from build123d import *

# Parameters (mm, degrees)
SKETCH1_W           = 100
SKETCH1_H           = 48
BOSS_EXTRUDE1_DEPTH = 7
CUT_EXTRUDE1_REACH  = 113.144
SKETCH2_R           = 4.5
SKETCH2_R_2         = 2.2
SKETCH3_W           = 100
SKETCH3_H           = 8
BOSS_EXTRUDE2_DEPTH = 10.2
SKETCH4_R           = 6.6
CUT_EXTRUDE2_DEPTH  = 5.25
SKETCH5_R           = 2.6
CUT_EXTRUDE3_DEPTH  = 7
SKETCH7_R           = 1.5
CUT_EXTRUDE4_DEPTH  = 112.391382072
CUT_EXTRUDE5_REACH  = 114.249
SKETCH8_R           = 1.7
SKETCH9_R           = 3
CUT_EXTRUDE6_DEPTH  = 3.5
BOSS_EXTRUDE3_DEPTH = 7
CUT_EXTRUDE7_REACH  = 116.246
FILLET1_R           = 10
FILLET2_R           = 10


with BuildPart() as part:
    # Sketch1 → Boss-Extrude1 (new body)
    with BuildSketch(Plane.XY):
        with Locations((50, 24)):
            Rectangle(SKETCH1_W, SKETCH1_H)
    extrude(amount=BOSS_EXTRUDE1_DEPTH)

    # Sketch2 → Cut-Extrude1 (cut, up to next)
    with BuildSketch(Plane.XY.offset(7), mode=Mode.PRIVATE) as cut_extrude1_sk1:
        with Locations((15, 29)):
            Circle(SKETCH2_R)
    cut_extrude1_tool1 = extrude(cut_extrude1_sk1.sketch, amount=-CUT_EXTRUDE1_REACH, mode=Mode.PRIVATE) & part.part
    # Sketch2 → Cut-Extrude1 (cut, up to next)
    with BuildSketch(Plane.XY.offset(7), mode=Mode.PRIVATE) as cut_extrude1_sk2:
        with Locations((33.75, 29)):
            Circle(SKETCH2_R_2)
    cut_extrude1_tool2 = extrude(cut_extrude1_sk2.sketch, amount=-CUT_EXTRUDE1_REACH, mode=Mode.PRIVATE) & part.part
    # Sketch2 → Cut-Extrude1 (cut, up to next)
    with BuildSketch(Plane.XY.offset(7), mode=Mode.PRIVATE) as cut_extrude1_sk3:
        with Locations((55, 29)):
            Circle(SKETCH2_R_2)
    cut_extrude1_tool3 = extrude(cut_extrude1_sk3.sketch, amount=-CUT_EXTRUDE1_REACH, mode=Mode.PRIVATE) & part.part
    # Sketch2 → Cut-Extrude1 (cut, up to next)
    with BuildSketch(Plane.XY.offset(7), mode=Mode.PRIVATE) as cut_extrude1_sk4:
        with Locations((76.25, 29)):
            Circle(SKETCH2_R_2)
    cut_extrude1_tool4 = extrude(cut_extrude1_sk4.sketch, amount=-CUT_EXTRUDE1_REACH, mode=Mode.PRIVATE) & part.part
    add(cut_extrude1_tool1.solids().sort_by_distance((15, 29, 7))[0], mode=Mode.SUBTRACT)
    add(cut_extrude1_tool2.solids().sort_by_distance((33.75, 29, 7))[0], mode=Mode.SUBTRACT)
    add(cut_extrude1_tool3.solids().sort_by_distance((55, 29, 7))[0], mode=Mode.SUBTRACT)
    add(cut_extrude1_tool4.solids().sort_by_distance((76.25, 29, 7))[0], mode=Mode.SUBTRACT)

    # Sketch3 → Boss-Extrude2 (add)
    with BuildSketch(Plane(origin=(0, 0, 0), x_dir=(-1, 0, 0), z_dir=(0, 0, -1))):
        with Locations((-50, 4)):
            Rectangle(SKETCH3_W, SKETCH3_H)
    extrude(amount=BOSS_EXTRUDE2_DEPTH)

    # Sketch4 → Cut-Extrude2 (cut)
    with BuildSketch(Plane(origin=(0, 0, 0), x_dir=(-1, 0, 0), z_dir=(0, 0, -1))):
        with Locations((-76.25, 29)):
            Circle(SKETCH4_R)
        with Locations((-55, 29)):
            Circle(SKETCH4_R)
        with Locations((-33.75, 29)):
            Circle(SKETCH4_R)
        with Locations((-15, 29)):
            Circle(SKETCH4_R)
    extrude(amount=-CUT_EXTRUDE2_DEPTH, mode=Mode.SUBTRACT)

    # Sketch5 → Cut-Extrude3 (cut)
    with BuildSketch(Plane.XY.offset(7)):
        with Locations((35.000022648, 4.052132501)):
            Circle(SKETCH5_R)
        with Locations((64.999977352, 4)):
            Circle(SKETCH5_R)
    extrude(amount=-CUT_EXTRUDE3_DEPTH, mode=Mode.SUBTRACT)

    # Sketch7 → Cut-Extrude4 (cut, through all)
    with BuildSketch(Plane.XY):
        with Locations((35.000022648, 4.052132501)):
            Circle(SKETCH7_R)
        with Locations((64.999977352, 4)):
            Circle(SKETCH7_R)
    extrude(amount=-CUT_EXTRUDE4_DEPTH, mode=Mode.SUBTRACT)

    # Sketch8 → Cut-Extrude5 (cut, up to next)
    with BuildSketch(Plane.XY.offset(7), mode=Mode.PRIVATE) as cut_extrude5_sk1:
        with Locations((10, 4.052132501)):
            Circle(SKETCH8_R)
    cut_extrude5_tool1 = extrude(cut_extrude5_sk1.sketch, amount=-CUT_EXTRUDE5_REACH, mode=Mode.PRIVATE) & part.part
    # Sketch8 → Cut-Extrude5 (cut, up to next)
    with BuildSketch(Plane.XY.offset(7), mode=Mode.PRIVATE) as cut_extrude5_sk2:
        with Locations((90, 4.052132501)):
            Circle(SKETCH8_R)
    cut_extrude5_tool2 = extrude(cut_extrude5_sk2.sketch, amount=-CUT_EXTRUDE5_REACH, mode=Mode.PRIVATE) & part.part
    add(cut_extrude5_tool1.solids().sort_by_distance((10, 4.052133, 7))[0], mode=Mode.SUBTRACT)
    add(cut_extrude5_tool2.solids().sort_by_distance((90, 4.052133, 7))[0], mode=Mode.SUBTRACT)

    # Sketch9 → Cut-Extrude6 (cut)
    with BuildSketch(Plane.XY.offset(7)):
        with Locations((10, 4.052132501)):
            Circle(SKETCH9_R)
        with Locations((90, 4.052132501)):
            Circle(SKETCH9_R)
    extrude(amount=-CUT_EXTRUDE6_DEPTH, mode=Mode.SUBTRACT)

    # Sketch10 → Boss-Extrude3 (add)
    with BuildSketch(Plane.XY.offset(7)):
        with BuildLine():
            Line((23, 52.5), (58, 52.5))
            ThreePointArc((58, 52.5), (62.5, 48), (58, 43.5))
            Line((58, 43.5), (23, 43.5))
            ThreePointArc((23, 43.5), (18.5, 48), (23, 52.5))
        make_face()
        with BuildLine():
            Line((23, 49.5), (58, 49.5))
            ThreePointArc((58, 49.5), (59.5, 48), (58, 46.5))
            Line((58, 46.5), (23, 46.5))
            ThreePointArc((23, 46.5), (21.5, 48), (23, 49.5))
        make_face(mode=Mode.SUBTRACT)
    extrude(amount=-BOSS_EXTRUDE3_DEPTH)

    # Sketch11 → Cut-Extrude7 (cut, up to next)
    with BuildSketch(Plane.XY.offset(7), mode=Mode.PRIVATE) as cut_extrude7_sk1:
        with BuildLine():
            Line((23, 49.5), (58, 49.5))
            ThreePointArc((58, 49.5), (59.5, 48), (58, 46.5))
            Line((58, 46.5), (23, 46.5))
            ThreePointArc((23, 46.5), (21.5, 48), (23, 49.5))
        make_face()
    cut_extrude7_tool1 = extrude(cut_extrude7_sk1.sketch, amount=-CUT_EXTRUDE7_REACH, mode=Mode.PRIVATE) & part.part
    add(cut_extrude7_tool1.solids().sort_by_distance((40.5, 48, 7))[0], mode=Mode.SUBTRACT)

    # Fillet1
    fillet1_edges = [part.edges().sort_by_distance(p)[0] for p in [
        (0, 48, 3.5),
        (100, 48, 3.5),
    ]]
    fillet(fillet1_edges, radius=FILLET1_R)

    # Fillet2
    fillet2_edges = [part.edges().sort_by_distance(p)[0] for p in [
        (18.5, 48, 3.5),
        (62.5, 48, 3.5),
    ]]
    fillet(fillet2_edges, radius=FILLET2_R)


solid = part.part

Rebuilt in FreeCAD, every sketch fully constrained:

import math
import FreeCAD as App
import Part
import Sketcher


def edges_at(feature, points):
    """Names of the edges that pass closest to the given points."""
    edges = feature.Shape.Edges
    near = lambda p: min(range(len(edges)), key=lambda i: edges[i].distToShape(Part.Vertex(*p))[0])
    return sorted({f"Edge{near(p) + 1}" for p in points})

doc = App.newDocument("Part")
body = doc.addObject("PartDesign::Body", "Body")

sketch1 = body.newObject("Sketcher::SketchObject", "Sketch")
sketch1.AttachmentSupport = (doc.getObject("XY_Plane"), [""])
sketch1.MapMode = "FlatFace"
sketch1.addGeometry([
    Part.LineSegment(App.Vector(0, 48, 0), App.Vector(0, 0, 0)),
    Part.LineSegment(App.Vector(0, 0, 0), App.Vector(100, 0, 0)),
    Part.LineSegment(App.Vector(100, 0, 0), App.Vector(100, 48, 0)),
    Part.LineSegment(App.Vector(100, 48, 0), App.Vector(0, 48, 0)),
], False)
sketch1.addConstraint([
    Sketcher.Constraint("Coincident", 0, 2, 1, 1),
    Sketcher.Constraint("Coincident", 1, 2, 2, 1),
    Sketcher.Constraint("Coincident", 2, 2, 3, 1),
    Sketcher.Constraint("Coincident", 3, 2, 0, 1),
    Sketcher.Constraint("Vertical", 0),
    Sketcher.Constraint("Horizontal", 1),
    Sketcher.Constraint("Vertical", 2),
    Sketcher.Constraint("Horizontal", 3),
    Sketcher.Constraint("Coincident", 0, 2, -1, 1),
    Sketcher.Constraint("DistanceX", 1, 1, 1, 2, 100.0),
    Sketcher.Constraint("DistanceY", 0, 2, 0, 1, 48.0),
])
pad1 = body.newObject("PartDesign::Pad", "Pad")
pad1.Profile = sketch1
pad1.Length = 7

sketch2 = body.newObject("Sketcher::SketchObject", "Sketch001")
sketch2.AttachmentSupport = (doc.getObject("XY_Plane"), [""])
sketch2.MapMode = "FlatFace"
sketch2.AttachmentOffset = App.Placement(App.Vector(0, 0, 7), App.Rotation())
sketch2.addGeometry(Part.Circle(App.Vector(15, 29, 0), App.Vector(0, 0, 1), 4.5), False)
sketch2.addConstraint([
    Sketcher.Constraint("Diameter", 0, 9.0),
    Sketcher.Constraint("DistanceX", -1, 1, 0, 3, 15.0),
    Sketcher.Constraint("DistanceY", -1, 1, 0, 3, 29.0),
])
pocket1 = body.newObject("PartDesign::Pocket", "Pocket")
pocket1.Profile = sketch2
pocket1.Type = "UpToFirst"

sketch3 = body.newObject("Sketcher::SketchObject", "Sketch002")
sketch3.AttachmentSupport = (doc.getObject("XY_Plane"), [""])
sketch3.MapMode = "FlatFace"
sketch3.AttachmentOffset = App.Placement(App.Vector(0, 0, 7), App.Rotation())
sketch3.addGeometry(Part.Circle(App.Vector(33.8, 29, 0), App.Vector(0, 0, 1), 2.2), False)
sketch3.addConstraint([
    Sketcher.Constraint("Diameter", 0, 4.4),
    Sketcher.Constraint("DistanceY", -1, 1, 0, 3, 29.0),
    Sketcher.Constraint("DistanceX", -1, 1, 0, 3, 33.75),
])
pocket2 = body.newObject("PartDesign::Pocket", "Pocket001")
pocket2.Profile = sketch3
pocket2.Type = "UpToFirst"

sketch4 = body.newObject("Sketcher::SketchObject", "Sketch003")
sketch4.AttachmentSupport = (doc.getObject("XY_Plane"), [""])
sketch4.MapMode = "FlatFace"
sketch4.AttachmentOffset = App.Placement(App.Vector(0, 0, 7), App.Rotation())
sketch4.addGeometry(Part.Circle(App.Vector(55, 29, 0), App.Vector(0, 0, 1), 2.2), False)
sketch4.addConstraint([
    Sketcher.Constraint("Diameter", 0, 4.4),
    Sketcher.Constraint("DistanceX", -1, 1, 0, 3, 55.0),
    Sketcher.Constraint("DistanceY", -1, 1, 0, 3, 29.0),
])
pocket3 = body.newObject("PartDesign::Pocket", "Pocket002")
pocket3.Profile = sketch4
pocket3.Type = "UpToFirst"

sketch5 = body.newObject("Sketcher::SketchObject", "Sketch004")
sketch5.AttachmentSupport = (doc.getObject("XY_Plane"), [""])
sketch5.MapMode = "FlatFace"
sketch5.AttachmentOffset = App.Placement(App.Vector(0, 0, 7), App.Rotation())
sketch5.addGeometry(Part.Circle(App.Vector(76.2, 29, 0), App.Vector(0, 0, 1), 2.2), False)
sketch5.addConstraint([
    Sketcher.Constraint("Diameter", 0, 4.4),
    Sketcher.Constraint("DistanceY", -1, 1, 0, 3, 29.0),
    Sketcher.Constraint("DistanceX", -1, 1, 0, 3, 76.25),
])
pocket4 = body.newObject("PartDesign::Pocket", "Pocket003")
pocket4.Profile = sketch5
pocket4.Type = "UpToFirst"

sketch6 = body.newObject("Sketcher::SketchObject", "Sketch005")
sketch6.AttachmentSupport = (doc.getObject("XY_Plane"), [""])
sketch6.MapMode = "FlatFace"
sketch6.addGeometry([
    Part.LineSegment(App.Vector(100, 8, 0), App.Vector(100, 0, 0)),
    Part.LineSegment(App.Vector(100, 0, 0), App.Vector(0, 0, 0)),
    Part.LineSegment(App.Vector(0, 0, 0), App.Vector(0, 8, 0)),
    Part.LineSegment(App.Vector(0, 8, 0), App.Vector(100, 8, 0)),
], False)
sketch6.addConstraint([
    Sketcher.Constraint("Coincident", 0, 2, 1, 1),
    Sketcher.Constraint("Coincident", 1, 2, 2, 1),
    Sketcher.Constraint("Coincident", 2, 2, 3, 1),
    Sketcher.Constraint("Coincident", 3, 2, 0, 1),
    Sketcher.Constraint("Vertical", 0),
    Sketcher.Constraint("Horizontal", 1),
    Sketcher.Constraint("Vertical", 2),
    Sketcher.Constraint("Horizontal", 3),
    Sketcher.Constraint("Coincident", 1, 2, -1, 1),
    Sketcher.Constraint("DistanceX", 1, 2, 1, 1, 100.0),
    Sketcher.Constraint("DistanceY", 0, 2, 0, 1, 8.0),
])
pad2 = body.newObject("PartDesign::Pad", "Pad001")
pad2.Profile = sketch6
pad2.Length = 10.2
pad2.Reversed = True

sketch7 = body.newObject("Sketcher::SketchObject", "Sketch006")
sketch7.AttachmentSupport = (doc.getObject("XY_Plane"), [""])
sketch7.MapMode = "FlatFace"
sketch7.addGeometry([
    Part.Circle(App.Vector(76, 29, 0), App.Vector(0, 0, 1), 7),
    Part.Circle(App.Vector(55, 29, 0), App.Vector(0, 0, 1), 7),
    Part.Circle(App.Vector(34, 29, 0), App.Vector(0, 0, 1), 7),
    Part.Circle(App.Vector(15, 29, 0), App.Vector(0, 0, 1), 7),
], False)
sketch7.addConstraint([
    Sketcher.Constraint("Equal", 0, 1),
    Sketcher.Constraint("Equal", 1, 2),
    Sketcher.Constraint("Equal", 2, 3),
    Sketcher.Constraint("Horizontal", 0, 3, 1, 3),
    Sketcher.Constraint("Horizontal", 1, 3, 2, 3),
    Sketcher.Constraint("Horizontal", 2, 3, 3, 3),
    Sketcher.Constraint("Diameter", 0, 13.2),
    Sketcher.Constraint("DistanceY", -1, 1, 0, 3, 29.0),
    Sketcher.Constraint("DistanceX", -1, 1, 1, 3, 55.0),
    Sketcher.Constraint("DistanceX", -1, 1, 3, 3, 15.0),
    Sketcher.Constraint("DistanceX", 2, 3, 0, 3, 42.5),
    Sketcher.Constraint("DistanceX", -1, 1, 0, 3, 76.25),
])
pocket5 = body.newObject("PartDesign::Pocket", "Pocket004")
pocket5.Profile = sketch7
pocket5.Length = 5.25
pocket5.Reversed = True

sketch8 = body.newObject("Sketcher::SketchObject", "Sketch007")
sketch8.AttachmentSupport = (doc.getObject("XY_Plane"), [""])
sketch8.MapMode = "FlatFace"
sketch8.AttachmentOffset = App.Placement(App.Vector(0, 0, 7), App.Rotation())
sketch8.addGeometry([
    Part.Circle(App.Vector(35, 4.1, 0), App.Vector(0, 0, 1), 2.6),
    Part.Circle(App.Vector(65, 4, 0), App.Vector(0, 0, 1), 2.6),
], False)
sketch8.addConstraint([
    Sketcher.Constraint("Equal", 0, 1),
    Sketcher.Constraint("Diameter", 0, 5.2),
    Sketcher.Constraint("DistanceY", -1, 1, 1, 3, 4.0),
    Sketcher.Constraint("DistanceX", -1, 1, 0, 3, 35.000023),
    Sketcher.Constraint("DistanceY", -1, 1, 0, 3, 4.052133),
    Sketcher.Constraint("DistanceX", -1, 1, 1, 3, 64.999977),
])
pocket6 = body.newObject("PartDesign::Pocket", "Pocket005")
pocket6.Profile = sketch8
pocket6.Length = 7

sketch9 = body.newObject("Sketcher::SketchObject", "Sketch008")
sketch9.AttachmentSupport = (doc.getObject("XY_Plane"), [""])
sketch9.MapMode = "FlatFace"
sketch9.addGeometry([
    Part.Circle(App.Vector(35, 4.1, 0), App.Vector(0, 0, 1), 1.5),
    Part.Circle(App.Vector(65, 4, 0), App.Vector(0, 0, 1), 1.5),
], False)
sketch9.addConstraint([
    Sketcher.Constraint("Equal", 0, 1),
    Sketcher.Constraint("Diameter", 0, 3.0),
    Sketcher.Constraint("DistanceY", -1, 1, 1, 3, 4.0),
    Sketcher.Constraint("DistanceX", -1, 1, 0, 3, 35.000023),
    Sketcher.Constraint("DistanceY", -1, 1, 0, 3, 4.052133),
    Sketcher.Constraint("DistanceX", -1, 1, 1, 3, 64.999977),
])
pocket7 = body.newObject("PartDesign::Pocket", "Pocket006")
pocket7.Profile = sketch9
pocket7.Type = "ThroughAll"

sketch10 = body.newObject("Sketcher::SketchObject", "Sketch009")
sketch10.AttachmentSupport = (doc.getObject("XY_Plane"), [""])
sketch10.MapMode = "FlatFace"
sketch10.AttachmentOffset = App.Placement(App.Vector(0, 0, 7), App.Rotation())
sketch10.addGeometry(Part.Circle(App.Vector(10, 4.1, 0), App.Vector(0, 0, 1), 1.7), False)
sketch10.addConstraint([
    Sketcher.Constraint("Diameter", 0, 3.4),
    Sketcher.Constraint("DistanceX", -1, 1, 0, 3, 10.0),
    Sketcher.Constraint("DistanceY", -1, 1, 0, 3, 4.052133),
])
pocket8 = body.newObject("PartDesign::Pocket", "Pocket007")
pocket8.Profile = sketch10
pocket8.Type = "UpToFirst"

sketch11 = body.newObject("Sketcher::SketchObject", "Sketch010")
sketch11.AttachmentSupport = (doc.getObject("XY_Plane"), [""])
sketch11.MapMode = "FlatFace"
sketch11.AttachmentOffset = App.Placement(App.Vector(0, 0, 7), App.Rotation())
sketch11.addGeometry(Part.Circle(App.Vector(90, 4.1, 0), App.Vector(0, 0, 1), 1.7), False)
sketch11.addConstraint([
    Sketcher.Constraint("Diameter", 0, 3.4),
    Sketcher.Constraint("DistanceX", -1, 1, 0, 3, 90.0),
    Sketcher.Constraint("DistanceY", -1, 1, 0, 3, 4.052133),
])
pocket9 = body.newObject("PartDesign::Pocket", "Pocket008")
pocket9.Profile = sketch11
pocket9.Type = "UpToFirst"

sketch12 = body.newObject("Sketcher::SketchObject", "Sketch011")
sketch12.AttachmentSupport = (doc.getObject("XY_Plane"), [""])
sketch12.MapMode = "FlatFace"
sketch12.AttachmentOffset = App.Placement(App.Vector(0, 0, 7), App.Rotation())
sketch12.addGeometry([
    Part.Circle(App.Vector(10, 4.1, 0), App.Vector(0, 0, 1), 3),
    Part.Circle(App.Vector(90, 4.1, 0), App.Vector(0, 0, 1), 3),
], False)
sketch12.addConstraint([
    Sketcher.Constraint("Equal", 0, 1),
    Sketcher.Constraint("Horizontal", 0, 3, 1, 3),
    Sketcher.Constraint("Diameter", 0, 6.0),
    Sketcher.Constraint("DistanceX", -1, 1, 0, 3, 10.0),
    Sketcher.Constraint("DistanceX", -1, 1, 1, 3, 90.0),
    Sketcher.Constraint("DistanceY", -1, 1, 0, 3, 4.052133),
])
pocket10 = body.newObject("PartDesign::Pocket", "Pocket009")
pocket10.Profile = sketch12
pocket10.Length = 3.5

sketch13 = body.newObject("Sketcher::SketchObject", "Sketch012")
sketch13.AttachmentSupport = (doc.getObject("XY_Plane"), [""])
sketch13.MapMode = "FlatFace"
sketch13.AttachmentOffset = App.Placement(App.Vector(0, 0, 7), App.Rotation())
sketch13.addGeometry([
    Part.LineSegment(App.Vector(58, 52.5, 0), App.Vector(23, 52.5, 0)),
    Part.ArcOfCircle(Part.Circle(App.Vector(23, 48, 0), App.Vector(0, 0, 1), 4.5), math.radians(90), math.radians(270)),
    Part.LineSegment(App.Vector(23, 43.5, 0), App.Vector(58, 43.5, 0)),
    Part.ArcOfCircle(Part.Circle(App.Vector(58, 48, 0), App.Vector(0, 0, 1), 4.5), math.radians(-90), math.radians(90)),
    Part.LineSegment(App.Vector(23, 49.5, 0), App.Vector(58, 49.5, 0)),
    Part.ArcOfCircle(Part.Circle(App.Vector(58, 48, 0), App.Vector(0, 0, 1), 1.5), math.radians(-90), math.radians(90)),
    Part.LineSegment(App.Vector(58, 46.5, 0), App.Vector(23, 46.5, 0)),
    Part.ArcOfCircle(Part.Circle(App.Vector(23, 48, 0), App.Vector(0, 0, 1), 1.5), math.radians(90), math.radians(270)),
], False)
sketch13.addConstraint([
    Sketcher.Constraint("Tangent", 0, 2, 1, 1),
    Sketcher.Constraint("Tangent", 1, 2, 2, 1),
    Sketcher.Constraint("Tangent", 2, 2, 3, 1),
    Sketcher.Constraint("Tangent", 3, 2, 0, 1),
    Sketcher.Constraint("Tangent", 4, 2, 5, 2),
    Sketcher.Constraint("Tangent", 5, 1, 6, 1),
    Sketcher.Constraint("Tangent", 6, 2, 7, 2),
    Sketcher.Constraint("Tangent", 7, 1, 4, 1),
    Sketcher.Constraint("Horizontal", 0),
    Sketcher.Constraint("Horizontal", 2),
    Sketcher.Constraint("Horizontal", 4),
    Sketcher.Constraint("Horizontal", 6),
    Sketcher.Constraint("Coincident", 5, 3, 3, 3),
    Sketcher.Constraint("Vertical", 7, 3, 0, 2),
    Sketcher.Constraint("Radius", 1, 4.5),
    Sketcher.Constraint("Radius", 5, 1.5),
    Sketcher.Constraint("DistanceX", 0, 2, 0, 1, 35.0),
    Sketcher.Constraint("DistanceX", -1, 1, 1, 3, 23.0),
    Sketcher.Constraint("DistanceY", -1, 1, 1, 3, 48.0),
])
pad3 = body.newObject("PartDesign::Pad", "Pad002")
pad3.Profile = sketch13
pad3.Length = 7
pad3.Reversed = True

sketch14 = body.newObject("Sketcher::SketchObject", "Sketch013")
sketch14.AttachmentSupport = (doc.getObject("XY_Plane"), [""])
sketch14.MapMode = "FlatFace"
sketch14.AttachmentOffset = App.Placement(App.Vector(0, 0, 7), App.Rotation())
sketch14.addGeometry([
    Part.LineSegment(App.Vector(58, 49.5, 0), App.Vector(23, 49.5, 0)),
    Part.ArcOfCircle(Part.Circle(App.Vector(23, 48, 0), App.Vector(0, 0, 1), 1.5), math.radians(90), math.radians(270)),
    Part.LineSegment(App.Vector(23, 46.5, 0), App.Vector(58, 46.5, 0)),
    Part.ArcOfCircle(Part.Circle(App.Vector(58, 48, 0), App.Vector(0, 0, 1), 1.5), math.radians(-90), math.radians(90)),
], False)
sketch14.addConstraint([
    Sketcher.Constraint("Tangent", 0, 2, 1, 1),
    Sketcher.Constraint("Tangent", 1, 2, 2, 1),
    Sketcher.Constraint("Tangent", 2, 2, 3, 1),
    Sketcher.Constraint("Tangent", 3, 2, 0, 1),
    Sketcher.Constraint("Horizontal", 0),
    Sketcher.Constraint("Horizontal", 2),
    Sketcher.Constraint("Radius", 1, 1.5),
    Sketcher.Constraint("DistanceX", 0, 2, 0, 1, 35.0),
    Sketcher.Constraint("DistanceX", -1, 1, 1, 3, 23.0),
    Sketcher.Constraint("DistanceY", -1, 1, 1, 3, 48.0),
])
pocket11 = body.newObject("PartDesign::Pocket", "Pocket010")
pocket11.Profile = sketch14
pocket11.Type = "UpToFirst"
doc.recompute()

fillet = body.newObject("PartDesign::Fillet", "Fillet")
fillet.Base = (pocket11, edges_at(pocket11, [(0, 48, 3.5), (100, 48, 3.5)]))
fillet.Radius = 10
doc.recompute()

fillet2 = body.newObject("PartDesign::Fillet", "Fillet001")
fillet2.Base = (fillet, edges_at(fillet, [(18.5, 48, 3.5), (62.5, 48, 3.5)]))
fillet2.Radius = 10

doc.recompute()
